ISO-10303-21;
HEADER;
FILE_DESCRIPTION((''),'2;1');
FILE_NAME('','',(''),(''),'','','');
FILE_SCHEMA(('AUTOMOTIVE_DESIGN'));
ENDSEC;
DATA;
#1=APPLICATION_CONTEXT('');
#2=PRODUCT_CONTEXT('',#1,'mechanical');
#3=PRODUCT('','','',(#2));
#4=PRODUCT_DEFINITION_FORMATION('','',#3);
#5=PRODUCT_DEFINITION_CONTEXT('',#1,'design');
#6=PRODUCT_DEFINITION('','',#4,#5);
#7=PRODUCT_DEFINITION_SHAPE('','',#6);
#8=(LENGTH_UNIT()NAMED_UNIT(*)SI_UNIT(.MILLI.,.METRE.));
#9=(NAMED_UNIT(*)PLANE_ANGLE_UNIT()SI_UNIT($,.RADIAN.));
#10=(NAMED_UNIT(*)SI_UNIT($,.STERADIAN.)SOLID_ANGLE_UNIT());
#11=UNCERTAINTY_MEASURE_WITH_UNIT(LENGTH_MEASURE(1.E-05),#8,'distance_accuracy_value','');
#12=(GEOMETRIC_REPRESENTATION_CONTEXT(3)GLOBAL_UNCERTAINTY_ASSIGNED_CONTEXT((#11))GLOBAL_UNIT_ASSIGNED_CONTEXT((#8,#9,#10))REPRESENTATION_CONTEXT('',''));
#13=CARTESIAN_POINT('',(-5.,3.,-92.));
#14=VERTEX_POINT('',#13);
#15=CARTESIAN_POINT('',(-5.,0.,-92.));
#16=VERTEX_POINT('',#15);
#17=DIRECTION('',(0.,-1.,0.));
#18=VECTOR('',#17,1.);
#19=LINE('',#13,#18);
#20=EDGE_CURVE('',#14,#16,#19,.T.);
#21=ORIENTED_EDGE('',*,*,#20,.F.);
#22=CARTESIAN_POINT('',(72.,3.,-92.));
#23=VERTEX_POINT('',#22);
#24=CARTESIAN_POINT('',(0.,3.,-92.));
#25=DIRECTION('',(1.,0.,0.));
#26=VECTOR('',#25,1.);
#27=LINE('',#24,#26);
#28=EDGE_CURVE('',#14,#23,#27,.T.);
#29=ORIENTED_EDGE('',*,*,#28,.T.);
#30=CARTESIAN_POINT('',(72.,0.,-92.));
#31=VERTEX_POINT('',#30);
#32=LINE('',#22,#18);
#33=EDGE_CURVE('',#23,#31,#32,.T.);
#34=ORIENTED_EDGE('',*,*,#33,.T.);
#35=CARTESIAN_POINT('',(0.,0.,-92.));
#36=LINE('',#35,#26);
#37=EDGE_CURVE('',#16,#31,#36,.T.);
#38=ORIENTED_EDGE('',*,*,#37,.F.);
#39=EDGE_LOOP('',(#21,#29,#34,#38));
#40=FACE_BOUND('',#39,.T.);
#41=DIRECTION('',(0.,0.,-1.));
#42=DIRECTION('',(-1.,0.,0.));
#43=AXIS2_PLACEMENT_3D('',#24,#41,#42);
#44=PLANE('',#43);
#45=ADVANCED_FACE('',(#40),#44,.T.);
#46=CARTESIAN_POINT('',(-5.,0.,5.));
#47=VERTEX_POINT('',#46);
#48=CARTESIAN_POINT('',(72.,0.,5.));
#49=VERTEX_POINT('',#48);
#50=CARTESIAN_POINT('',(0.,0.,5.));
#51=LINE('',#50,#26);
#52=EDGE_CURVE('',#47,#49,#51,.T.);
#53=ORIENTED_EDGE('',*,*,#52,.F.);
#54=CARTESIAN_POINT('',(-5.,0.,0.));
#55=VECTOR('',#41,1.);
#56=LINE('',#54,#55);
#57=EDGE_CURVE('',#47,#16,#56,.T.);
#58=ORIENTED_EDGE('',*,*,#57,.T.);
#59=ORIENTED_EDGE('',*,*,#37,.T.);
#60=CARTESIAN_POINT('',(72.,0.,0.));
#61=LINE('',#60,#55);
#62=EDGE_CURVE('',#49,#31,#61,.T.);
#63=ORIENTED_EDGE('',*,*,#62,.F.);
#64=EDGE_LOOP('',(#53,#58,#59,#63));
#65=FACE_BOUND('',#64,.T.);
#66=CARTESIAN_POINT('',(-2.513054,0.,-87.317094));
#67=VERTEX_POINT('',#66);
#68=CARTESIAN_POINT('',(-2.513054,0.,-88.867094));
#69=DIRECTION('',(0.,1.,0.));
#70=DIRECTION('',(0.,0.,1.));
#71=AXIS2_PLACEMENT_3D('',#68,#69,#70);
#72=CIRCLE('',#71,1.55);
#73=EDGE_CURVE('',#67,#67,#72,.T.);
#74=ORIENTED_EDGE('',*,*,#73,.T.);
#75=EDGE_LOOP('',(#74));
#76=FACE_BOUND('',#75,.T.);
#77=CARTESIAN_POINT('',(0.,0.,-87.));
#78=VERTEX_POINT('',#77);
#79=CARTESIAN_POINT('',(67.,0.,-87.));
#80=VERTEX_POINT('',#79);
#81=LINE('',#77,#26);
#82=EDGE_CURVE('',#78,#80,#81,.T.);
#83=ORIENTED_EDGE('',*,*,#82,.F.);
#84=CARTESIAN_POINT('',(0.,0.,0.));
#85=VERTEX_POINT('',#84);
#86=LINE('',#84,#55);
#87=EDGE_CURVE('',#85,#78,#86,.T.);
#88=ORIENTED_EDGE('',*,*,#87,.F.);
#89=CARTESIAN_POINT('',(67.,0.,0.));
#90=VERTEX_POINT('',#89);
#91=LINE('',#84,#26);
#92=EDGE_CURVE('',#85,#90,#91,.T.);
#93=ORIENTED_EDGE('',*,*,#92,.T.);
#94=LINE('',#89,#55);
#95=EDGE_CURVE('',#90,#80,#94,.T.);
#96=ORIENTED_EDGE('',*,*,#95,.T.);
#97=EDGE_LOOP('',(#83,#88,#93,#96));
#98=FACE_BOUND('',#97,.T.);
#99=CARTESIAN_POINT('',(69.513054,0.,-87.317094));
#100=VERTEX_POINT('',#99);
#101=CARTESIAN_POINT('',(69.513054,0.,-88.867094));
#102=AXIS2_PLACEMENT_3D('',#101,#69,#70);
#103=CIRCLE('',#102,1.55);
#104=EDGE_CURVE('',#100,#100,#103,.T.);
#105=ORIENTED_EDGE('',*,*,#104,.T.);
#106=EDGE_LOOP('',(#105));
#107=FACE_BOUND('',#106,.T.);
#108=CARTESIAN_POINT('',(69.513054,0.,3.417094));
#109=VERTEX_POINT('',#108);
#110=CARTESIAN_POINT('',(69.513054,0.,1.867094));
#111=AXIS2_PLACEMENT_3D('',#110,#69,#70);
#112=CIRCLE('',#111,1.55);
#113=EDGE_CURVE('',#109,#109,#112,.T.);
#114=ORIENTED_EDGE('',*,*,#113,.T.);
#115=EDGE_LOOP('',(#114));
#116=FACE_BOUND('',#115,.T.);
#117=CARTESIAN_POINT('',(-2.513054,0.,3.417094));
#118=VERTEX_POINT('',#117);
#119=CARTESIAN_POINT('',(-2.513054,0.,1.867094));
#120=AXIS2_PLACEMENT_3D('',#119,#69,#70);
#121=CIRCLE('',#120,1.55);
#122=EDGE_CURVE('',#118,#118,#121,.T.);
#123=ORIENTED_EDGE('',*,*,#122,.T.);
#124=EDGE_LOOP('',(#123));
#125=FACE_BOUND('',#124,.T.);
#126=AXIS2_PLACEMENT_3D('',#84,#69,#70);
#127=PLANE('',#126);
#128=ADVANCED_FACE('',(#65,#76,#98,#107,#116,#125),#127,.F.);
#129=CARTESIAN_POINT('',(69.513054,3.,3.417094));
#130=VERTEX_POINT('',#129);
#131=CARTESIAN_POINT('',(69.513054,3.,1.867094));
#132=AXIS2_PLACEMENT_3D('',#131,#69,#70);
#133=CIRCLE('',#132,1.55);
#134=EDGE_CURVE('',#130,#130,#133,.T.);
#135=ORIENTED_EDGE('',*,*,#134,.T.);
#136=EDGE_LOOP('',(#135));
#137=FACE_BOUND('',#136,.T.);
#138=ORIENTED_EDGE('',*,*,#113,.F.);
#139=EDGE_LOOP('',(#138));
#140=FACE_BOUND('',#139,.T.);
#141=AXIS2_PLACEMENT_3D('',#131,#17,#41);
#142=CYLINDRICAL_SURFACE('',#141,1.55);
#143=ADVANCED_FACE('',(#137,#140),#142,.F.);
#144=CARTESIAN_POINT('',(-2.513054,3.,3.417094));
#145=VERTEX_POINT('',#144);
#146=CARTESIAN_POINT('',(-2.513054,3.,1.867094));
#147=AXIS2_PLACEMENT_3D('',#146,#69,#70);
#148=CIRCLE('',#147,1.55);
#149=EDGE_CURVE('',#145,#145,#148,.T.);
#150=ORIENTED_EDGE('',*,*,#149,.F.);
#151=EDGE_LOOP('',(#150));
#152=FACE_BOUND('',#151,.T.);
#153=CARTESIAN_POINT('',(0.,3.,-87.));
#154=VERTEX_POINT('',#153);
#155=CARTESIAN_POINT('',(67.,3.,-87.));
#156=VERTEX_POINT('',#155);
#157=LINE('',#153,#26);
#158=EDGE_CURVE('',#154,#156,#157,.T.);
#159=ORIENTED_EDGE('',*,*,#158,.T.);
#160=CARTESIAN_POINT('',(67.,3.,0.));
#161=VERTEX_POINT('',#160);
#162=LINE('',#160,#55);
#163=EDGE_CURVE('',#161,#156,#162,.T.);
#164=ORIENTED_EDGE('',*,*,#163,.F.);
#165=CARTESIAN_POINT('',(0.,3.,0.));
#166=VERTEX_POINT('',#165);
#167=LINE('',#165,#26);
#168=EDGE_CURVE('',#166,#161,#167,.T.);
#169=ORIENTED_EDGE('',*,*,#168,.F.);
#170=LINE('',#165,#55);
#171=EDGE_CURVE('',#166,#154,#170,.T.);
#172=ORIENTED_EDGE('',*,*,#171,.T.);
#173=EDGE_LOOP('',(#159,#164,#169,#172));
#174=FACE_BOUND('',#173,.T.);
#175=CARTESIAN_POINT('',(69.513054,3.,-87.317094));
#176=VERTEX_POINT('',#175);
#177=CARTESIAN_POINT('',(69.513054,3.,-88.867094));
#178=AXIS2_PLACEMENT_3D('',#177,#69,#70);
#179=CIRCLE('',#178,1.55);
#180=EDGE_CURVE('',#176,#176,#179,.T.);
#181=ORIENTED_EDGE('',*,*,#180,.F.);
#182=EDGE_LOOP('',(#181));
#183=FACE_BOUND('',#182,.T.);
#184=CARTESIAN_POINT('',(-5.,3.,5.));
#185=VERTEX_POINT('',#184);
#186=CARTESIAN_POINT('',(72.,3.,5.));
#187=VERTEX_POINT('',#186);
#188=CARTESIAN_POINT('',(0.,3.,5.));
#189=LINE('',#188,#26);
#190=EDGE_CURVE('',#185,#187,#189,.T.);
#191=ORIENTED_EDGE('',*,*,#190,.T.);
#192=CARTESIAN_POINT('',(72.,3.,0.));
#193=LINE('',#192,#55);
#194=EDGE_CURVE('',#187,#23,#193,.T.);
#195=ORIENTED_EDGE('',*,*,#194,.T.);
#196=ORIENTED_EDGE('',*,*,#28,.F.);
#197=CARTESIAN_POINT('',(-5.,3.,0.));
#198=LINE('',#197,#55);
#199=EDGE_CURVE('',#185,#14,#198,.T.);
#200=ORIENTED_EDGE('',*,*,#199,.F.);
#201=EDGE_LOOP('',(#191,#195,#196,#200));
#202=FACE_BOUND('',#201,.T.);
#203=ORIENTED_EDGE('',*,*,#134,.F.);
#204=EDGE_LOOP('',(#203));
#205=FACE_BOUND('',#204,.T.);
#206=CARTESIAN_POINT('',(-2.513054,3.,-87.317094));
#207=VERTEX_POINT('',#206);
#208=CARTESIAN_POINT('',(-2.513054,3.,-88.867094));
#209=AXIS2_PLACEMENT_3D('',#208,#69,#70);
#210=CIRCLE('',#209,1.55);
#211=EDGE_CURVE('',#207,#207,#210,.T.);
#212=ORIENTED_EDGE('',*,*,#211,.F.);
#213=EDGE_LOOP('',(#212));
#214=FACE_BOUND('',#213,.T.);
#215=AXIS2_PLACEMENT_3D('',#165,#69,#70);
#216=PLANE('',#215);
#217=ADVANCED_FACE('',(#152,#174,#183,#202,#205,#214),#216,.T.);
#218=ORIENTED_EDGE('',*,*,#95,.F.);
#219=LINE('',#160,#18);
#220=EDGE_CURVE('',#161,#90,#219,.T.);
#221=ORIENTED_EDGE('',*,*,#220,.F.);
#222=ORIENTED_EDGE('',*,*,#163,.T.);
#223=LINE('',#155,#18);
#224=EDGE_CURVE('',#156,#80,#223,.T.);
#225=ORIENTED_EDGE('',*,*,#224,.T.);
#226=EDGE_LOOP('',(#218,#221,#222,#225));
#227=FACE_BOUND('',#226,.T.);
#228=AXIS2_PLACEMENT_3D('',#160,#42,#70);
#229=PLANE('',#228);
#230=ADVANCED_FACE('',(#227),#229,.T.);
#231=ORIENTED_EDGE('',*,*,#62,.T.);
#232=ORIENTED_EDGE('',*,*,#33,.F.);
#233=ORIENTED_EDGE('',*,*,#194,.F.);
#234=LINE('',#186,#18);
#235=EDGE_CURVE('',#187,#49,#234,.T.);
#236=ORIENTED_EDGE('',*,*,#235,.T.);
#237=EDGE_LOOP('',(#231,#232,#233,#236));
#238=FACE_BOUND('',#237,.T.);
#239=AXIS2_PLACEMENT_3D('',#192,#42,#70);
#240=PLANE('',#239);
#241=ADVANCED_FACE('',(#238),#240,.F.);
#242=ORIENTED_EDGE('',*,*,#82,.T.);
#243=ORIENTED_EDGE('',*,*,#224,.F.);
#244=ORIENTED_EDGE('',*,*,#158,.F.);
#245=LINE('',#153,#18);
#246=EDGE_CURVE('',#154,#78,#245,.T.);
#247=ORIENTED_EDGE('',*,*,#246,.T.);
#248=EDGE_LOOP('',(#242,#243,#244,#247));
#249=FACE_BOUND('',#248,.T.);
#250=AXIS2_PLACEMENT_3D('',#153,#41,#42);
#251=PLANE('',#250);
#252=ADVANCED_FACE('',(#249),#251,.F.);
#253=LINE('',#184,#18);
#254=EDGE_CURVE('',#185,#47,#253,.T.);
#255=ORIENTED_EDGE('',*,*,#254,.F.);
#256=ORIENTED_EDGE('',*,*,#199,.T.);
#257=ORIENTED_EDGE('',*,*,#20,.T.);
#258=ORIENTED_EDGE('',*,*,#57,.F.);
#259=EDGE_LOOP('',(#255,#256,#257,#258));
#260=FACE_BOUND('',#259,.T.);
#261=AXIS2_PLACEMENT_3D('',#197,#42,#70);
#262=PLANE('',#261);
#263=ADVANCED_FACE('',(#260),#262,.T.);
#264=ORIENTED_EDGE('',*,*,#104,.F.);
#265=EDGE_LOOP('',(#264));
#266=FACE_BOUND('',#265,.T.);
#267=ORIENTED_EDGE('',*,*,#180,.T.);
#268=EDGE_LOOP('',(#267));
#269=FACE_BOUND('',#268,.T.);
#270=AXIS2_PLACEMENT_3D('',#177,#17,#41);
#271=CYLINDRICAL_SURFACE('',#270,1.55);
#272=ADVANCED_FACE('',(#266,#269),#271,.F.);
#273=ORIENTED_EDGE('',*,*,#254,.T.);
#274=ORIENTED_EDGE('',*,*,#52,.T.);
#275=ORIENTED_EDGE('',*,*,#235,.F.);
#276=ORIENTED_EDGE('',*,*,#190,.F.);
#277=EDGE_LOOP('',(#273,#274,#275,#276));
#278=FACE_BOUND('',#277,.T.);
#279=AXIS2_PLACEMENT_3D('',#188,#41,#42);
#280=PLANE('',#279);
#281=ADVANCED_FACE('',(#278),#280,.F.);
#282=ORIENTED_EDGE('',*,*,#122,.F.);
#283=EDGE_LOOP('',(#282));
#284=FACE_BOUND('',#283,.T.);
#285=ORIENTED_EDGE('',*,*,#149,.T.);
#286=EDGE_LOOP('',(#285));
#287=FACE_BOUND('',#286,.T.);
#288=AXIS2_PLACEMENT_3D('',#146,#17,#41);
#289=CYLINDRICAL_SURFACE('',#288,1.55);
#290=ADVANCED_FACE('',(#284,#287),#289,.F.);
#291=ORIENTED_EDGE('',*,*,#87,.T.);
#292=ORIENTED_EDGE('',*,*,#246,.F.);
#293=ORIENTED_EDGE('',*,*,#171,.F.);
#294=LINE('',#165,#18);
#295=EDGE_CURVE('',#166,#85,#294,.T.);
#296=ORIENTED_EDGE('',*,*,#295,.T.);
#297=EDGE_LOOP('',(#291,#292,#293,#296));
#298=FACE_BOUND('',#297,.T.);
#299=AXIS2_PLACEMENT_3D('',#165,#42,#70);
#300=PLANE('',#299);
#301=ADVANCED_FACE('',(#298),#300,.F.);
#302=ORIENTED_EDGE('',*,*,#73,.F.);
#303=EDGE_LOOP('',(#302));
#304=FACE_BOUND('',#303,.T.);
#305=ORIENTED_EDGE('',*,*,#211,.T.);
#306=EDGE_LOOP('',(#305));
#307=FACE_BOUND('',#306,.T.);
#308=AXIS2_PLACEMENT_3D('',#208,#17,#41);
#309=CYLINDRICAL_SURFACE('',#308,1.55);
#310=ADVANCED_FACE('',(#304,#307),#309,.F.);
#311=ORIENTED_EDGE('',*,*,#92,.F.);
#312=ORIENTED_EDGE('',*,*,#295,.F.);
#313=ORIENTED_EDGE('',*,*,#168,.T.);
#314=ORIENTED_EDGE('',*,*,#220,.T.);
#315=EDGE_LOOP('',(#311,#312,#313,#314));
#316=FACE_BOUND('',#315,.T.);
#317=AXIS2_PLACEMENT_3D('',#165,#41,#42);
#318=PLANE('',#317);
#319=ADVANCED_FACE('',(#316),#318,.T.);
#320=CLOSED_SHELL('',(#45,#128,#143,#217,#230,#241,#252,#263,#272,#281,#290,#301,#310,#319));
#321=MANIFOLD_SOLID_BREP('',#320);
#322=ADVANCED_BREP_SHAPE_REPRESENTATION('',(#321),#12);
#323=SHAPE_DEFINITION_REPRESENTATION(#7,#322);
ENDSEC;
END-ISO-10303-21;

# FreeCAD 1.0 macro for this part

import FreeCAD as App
import Part
import Sketcher
from FreeCAD import Vector


def add_polygon(sketch, points):
    """Adds a closed chain of lines whose ends are joined by coincident constraints."""
    first, n = sketch.GeometryCount, len(points)
    for a, b in zip(points, points[1:] + points[:1]):
        sketch.addGeometry(Part.LineSegment(App.Vector(*a, 0), App.Vector(*b, 0)), False)
    for i in range(n):
        sketch.addConstraint(Sketcher.Constraint("Coincident", first + i, 2, first + (i + 1) % n, 1))

doc = App.newDocument("Part")
body = doc.addObject("PartDesign::Body", "Body")

# Sketch on XZ plane
sketch1 = body.newObject("Sketcher::SketchObject", "Sketch")
sketch1.AttachmentSupport = (doc.getObject("XZ_Plane"), [""])
sketch1.MapMode = "FlatFace"
add_polygon(sketch1, [(-5, -92), (-5, 5), (72, 5), (72, -92)])  # lines 0-3
sketch1.addGeometry(Part.Circle(Vector(-2.5, 1.9, 0), Vector(0, 0, 1), 1.6), False)  # 4
sketch1.addGeometry(Part.Circle(Vector(69.5, 1.9, 0), Vector(0, 0, 1), 1.6), False)  # 5
sketch1.addGeometry(Part.Circle(Vector(-2.5, -88.9, 0), Vector(0, 0, 1), 1.6), False)  # 6
add_polygon(sketch1, [(67, 0), (0, 0), (0, -87), (67, -87)])  # lines 7-10
sketch1.addGeometry(Part.Circle(Vector(69.5, -88.9, 0), Vector(0, 0, 1), 1.6), False)  # 11
sketch1.addConstraint(Sketcher.Constraint("Vertical", 0))
sketch1.addConstraint(Sketcher.Constraint("Horizontal", 1))
sketch1.addConstraint(Sketcher.Constraint("Vertical", 2))
sketch1.addConstraint(Sketcher.Constraint("Horizontal", 3))
sketch1.addConstraint(Sketcher.Constraint("Horizontal", 7))
sketch1.addConstraint(Sketcher.Constraint("Vertical", 8))
sketch1.addConstraint(Sketcher.Constraint("Horizontal", 9))
sketch1.addConstraint(Sketcher.Constraint("Vertical", 10))
sketch1.addConstraint(Sketcher.Constraint("Coincident", 7, 2, -1, 1))
sketch1.addConstraint(Sketcher.Constraint("Equal", 4, 5))
sketch1.addConstraint(Sketcher.Constraint("Equal", 5, 6))
sketch1.addConstraint(Sketcher.Constraint("Equal", 6, 11))
sketch1.addConstraint(Sketcher.Constraint("Horizontal", 4, 3, 5, 3))
sketch1.addConstraint(Sketcher.Constraint("Horizontal", 6, 3, 11, 3))
sketch1.addConstraint(Sketcher.Constraint("Vertical", 4, 3, 6, 3))
sketch1.addConstraint(Sketcher.Constraint("Vertical", 5, 3, 11, 3))
sketch1.addConstraint(Sketcher.Constraint("Diameter", 4, 3.1))
sketch1.addConstraint(Sketcher.Constraint("DistanceX", 1, 1, 1, 2, 77.0))
sketch1.addConstraint(Sketcher.Constraint("DistanceX", 7, 2, 7, 1, 67.0))
sketch1.addConstraint(Sketcher.Constraint("DistanceY", 0, 1, 0, 2, 97.0))
sketch1.addConstraint(Sketcher.Constraint("DistanceY", 8, 2, 8, 1, 87.0))
sketch1.addConstraint(Sketcher.Constraint("DistanceX", 0, 2, -1, 1, 5.0))
sketch1.addConstraint(Sketcher.Constraint("DistanceY", -1, 1, 0, 2, 5.0))
sketch1.addConstraint(Sketcher.Constraint("DistanceX", 4, 3, 5, 3, 72.026108))
sketch1.addConstraint(Sketcher.Constraint("DistanceY", 6, 3, 4, 3, 90.734188))
sketch1.addConstraint(Sketcher.Constraint("DistanceX", 4, 3, -1, 1, 2.513054))
sketch1.addConstraint(Sketcher.Constraint("DistanceY", -1, 1, 4, 3, 1.867094))
pad1 = body.newObject("PartDesign::Pad", "Pad")
pad1.Profile = sketch1
pad1.Length = 3
pad1.Reversed = True

doc.recompute()
